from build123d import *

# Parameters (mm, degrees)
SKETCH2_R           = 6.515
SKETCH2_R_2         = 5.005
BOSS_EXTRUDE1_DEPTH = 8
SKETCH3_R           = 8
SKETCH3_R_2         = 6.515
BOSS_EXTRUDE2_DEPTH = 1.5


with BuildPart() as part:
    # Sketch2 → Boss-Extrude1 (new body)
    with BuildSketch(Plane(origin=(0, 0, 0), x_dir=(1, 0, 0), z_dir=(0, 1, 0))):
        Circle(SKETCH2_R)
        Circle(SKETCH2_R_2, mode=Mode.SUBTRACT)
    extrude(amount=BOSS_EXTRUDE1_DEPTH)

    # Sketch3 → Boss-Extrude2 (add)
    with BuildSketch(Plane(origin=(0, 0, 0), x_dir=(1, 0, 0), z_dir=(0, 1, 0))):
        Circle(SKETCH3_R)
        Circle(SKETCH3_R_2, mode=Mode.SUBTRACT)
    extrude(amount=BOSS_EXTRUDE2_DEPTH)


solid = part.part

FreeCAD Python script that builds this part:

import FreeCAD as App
import Part
import Sketcher

V = App.Vector
Q = App.Units.Quantity

doc = App.newDocument("Part")
body = doc.addObject("PartDesign::Body", "Body")

# Sketch on XZ plane
sketch1 = body.newObject("Sketcher::SketchObject", "Sketch")
sketch1.AttachmentSupport = (doc.getObject("XZ_Plane"), [""])
sketch1.MapMode = "FlatFace"
sketch1.addGeometry([
    Part.Circle(V(0, 0, 0), V(0, 0, 1), 6.515),
    Part.Circle(V(0, 0, 0), V(0, 0, 1), 5.005),
], False)
sketch1.addConstraint([
    Sketcher.Constraint("Coincident", 0, 3, -1, 1),
    Sketcher.Constraint("Coincident", 1, 3, -1, 1),
    Sketcher.Constraint("Diameter", 0, Q("13.03 mm")),
    Sketcher.Constraint("Diameter", 1, Q("10.01 mm")),
])
pad1 = body.newObject("PartDesign::Pad", "Pad")
pad1.Profile = sketch1
pad1.Length = 8
pad1.Reversed = True

# Sketch on XZ plane
sketch2 = body.newObject("Sketcher::SketchObject", "Sketch001")
sketch2.AttachmentSupport = (doc.getObject("XZ_Plane"), [""])
sketch2.MapMode = "FlatFace"
sketch2.addGeometry([
    Part.Circle(V(0, 0, 0), V(0, 0, 1), 8),
    Part.Circle(V(0, 0, 0), V(0, 0, 1), 6.515),
], False)
sketch2.addConstraint([
    Sketcher.Constraint("Coincident", 0, 3, -1, 1),
    Sketcher.Constraint("Coincident", 1, 3, -1, 1),
    Sketcher.Constraint("Diameter", 0, Q("16 mm")),
    Sketcher.Constraint("Diameter", 1, Q("13.03 mm")),
])
pad2 = body.newObject("PartDesign::Pad", "Pad001")
pad2.Profile = sketch2
pad2.Length = 1.5
pad2.Reversed = True

doc.recompute()
